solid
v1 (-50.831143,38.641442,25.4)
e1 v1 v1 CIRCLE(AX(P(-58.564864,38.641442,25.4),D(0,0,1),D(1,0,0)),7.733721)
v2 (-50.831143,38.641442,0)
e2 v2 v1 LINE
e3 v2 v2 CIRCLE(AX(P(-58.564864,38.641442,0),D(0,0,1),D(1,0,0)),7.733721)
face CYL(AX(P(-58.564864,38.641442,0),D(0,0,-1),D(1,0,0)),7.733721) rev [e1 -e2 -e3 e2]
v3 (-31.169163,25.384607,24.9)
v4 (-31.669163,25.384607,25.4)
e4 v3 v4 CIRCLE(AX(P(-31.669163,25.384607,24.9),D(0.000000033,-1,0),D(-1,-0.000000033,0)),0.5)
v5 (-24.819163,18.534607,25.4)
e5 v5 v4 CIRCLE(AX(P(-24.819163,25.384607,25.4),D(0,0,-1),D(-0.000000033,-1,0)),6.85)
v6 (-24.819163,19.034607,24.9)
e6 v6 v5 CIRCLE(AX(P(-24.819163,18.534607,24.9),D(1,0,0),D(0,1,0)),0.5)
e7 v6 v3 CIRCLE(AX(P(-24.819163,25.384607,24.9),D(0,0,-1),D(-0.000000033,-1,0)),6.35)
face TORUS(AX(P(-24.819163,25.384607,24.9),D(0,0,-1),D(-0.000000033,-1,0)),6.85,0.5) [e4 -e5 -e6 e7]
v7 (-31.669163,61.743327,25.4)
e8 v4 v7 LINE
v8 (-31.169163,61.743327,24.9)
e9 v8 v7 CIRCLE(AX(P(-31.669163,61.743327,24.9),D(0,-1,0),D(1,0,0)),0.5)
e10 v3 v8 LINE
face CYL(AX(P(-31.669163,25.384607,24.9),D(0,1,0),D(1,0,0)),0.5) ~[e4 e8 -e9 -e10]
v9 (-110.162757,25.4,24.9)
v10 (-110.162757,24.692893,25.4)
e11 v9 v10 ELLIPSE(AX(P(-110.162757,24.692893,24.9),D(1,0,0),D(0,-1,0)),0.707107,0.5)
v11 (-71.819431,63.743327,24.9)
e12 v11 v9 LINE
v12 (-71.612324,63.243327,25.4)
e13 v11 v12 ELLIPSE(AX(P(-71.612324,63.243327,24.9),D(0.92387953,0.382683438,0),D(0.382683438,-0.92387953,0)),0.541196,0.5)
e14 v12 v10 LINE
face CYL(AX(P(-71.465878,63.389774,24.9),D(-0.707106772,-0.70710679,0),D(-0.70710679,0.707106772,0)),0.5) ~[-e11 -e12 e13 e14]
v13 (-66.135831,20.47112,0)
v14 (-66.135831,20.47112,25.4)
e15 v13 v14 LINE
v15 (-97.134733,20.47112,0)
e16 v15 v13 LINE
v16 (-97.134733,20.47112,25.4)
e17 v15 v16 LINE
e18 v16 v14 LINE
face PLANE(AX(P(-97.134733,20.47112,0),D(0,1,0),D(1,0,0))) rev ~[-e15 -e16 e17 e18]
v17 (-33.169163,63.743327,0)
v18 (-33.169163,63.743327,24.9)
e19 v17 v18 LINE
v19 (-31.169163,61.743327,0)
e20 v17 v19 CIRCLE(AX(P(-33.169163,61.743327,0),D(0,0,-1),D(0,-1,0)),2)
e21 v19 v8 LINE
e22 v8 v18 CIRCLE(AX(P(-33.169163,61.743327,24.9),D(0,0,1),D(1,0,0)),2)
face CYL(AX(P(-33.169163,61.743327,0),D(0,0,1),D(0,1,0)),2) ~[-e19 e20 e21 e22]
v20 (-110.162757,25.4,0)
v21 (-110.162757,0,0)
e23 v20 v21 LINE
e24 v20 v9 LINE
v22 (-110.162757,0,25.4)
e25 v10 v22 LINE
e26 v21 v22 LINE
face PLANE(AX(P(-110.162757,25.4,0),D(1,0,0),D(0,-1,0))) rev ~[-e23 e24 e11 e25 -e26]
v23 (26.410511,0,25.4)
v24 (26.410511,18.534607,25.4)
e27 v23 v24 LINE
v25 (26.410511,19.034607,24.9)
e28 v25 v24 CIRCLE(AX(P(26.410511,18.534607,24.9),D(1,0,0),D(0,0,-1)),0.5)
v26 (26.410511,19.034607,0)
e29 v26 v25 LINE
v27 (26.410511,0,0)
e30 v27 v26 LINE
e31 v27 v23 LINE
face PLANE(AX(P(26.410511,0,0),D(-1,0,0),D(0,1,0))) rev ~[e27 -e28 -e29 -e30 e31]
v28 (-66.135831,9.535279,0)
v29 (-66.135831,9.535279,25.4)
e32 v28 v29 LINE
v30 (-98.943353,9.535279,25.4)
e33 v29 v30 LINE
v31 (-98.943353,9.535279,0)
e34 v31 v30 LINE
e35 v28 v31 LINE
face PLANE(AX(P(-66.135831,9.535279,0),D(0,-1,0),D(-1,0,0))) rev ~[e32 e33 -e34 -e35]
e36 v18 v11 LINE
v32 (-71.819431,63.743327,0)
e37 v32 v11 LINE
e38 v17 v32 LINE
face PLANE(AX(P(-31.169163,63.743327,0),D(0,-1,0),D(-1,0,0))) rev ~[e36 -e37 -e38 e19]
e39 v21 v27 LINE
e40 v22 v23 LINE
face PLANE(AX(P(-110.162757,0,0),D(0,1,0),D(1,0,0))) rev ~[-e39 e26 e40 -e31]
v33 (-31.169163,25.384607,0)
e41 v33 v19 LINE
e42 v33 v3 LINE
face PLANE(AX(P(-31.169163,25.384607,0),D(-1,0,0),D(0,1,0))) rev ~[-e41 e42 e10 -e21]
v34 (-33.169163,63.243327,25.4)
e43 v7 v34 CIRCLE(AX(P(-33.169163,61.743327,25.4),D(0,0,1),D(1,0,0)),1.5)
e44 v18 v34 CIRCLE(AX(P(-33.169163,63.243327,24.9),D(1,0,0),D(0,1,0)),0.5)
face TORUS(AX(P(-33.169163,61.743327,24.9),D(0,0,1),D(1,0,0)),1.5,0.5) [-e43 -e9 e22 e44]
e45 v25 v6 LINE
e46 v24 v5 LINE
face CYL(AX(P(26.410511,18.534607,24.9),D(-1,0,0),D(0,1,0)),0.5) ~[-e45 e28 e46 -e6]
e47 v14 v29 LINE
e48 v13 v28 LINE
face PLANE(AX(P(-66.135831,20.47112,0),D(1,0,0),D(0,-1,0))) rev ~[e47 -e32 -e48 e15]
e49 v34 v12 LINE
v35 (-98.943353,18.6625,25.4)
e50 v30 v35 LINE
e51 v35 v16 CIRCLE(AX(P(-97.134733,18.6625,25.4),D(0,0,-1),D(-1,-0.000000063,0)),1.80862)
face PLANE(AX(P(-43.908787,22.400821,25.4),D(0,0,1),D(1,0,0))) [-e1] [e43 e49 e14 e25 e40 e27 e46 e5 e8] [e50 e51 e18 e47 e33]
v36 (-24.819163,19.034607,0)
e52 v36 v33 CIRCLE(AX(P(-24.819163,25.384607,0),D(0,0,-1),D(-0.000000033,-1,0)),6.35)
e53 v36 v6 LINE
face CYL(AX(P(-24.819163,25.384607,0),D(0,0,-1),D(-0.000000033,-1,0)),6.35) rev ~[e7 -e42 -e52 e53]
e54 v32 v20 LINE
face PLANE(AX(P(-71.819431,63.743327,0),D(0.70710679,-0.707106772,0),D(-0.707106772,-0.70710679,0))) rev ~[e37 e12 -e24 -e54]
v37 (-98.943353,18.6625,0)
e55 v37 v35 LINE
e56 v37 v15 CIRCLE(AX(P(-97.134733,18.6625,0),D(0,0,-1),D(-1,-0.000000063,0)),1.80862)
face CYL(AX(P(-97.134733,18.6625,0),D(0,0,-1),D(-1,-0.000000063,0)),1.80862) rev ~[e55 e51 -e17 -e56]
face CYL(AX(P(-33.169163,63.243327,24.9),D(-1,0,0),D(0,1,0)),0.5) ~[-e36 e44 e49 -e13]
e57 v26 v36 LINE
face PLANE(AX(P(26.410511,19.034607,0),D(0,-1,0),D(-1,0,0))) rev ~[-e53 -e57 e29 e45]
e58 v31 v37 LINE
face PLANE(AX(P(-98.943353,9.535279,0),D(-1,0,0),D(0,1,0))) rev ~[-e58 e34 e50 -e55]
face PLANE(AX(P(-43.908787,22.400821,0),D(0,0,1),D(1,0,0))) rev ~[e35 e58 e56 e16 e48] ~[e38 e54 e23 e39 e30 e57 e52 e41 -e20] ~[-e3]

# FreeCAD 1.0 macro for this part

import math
import FreeCAD as App
import Part
import Sketcher

V = App.Vector
Q = App.Units.Quantity


def edges_at(feature, points):
    """Names of the edges that pass closest to the given points."""
    edges = feature.Shape.Edges
    near = lambda p: min(range(len(edges)), key=lambda i: edges[i].distToShape(Part.Vertex(*p))[0])
    return sorted({f"Edge{near(p) + 1}" for p in points})

doc = App.newDocument("Part")
body = doc.addObject("PartDesign::Body", "Body")

# Sketch on XY plane
sketch1 = doc.addObject("Sketcher::SketchObject", "Sketch")
body.addObject(sketch1)
sketch1.AttachmentSupport = (doc.XY_Plane, [""])
sketch1.MapMode = "FlatFace"
sketch1.addGeometry([
    Part.LineSegment(V(-110.2, 0, 0), V(26.4, 0, 0)),  # 0
    Part.LineSegment(V(26.4, 0, 0), V(26.4, 19, 0)),  # 1
    Part.LineSegment(V(26.4, 19, 0), V(-24.8, 19, 0)),  # 2
    Part.ArcOfCircle(Part.Circle(V(-24.8, 25.4, 0), V(0, 0, 1), 6.4), math.radians(-180), math.radians(-90)),  # 3
    Part.LineSegment(V(-31.2, 25.4, 0), V(-31.2, 63.7, 0)),  # 4
    Part.LineSegment(V(-31.2, 63.7, 0), V(-71.8, 63.7, 0)),  # 5
    Part.LineSegment(V(-71.8, 63.7, 0), V(-110.2, 25.4, 0)),  # 6
    Part.LineSegment(V(-110.2, 25.4, 0), V(-110.2, 0, 0)),  # 7
    Part.LineSegment(V(-98.9, 9.5, 0), V(-98.9, 18.7, 0)),  # 8
    Part.ArcOfCircle(Part.Circle(V(-97.1, 18.7, 0), V(0, 0, 1), 1.8), math.radians(90), math.radians(180)),  # 9
    Part.LineSegment(V(-97.1, 20.5, 0), V(-66.1, 20.5, 0)),  # 10
    Part.LineSegment(V(-66.1, 20.5, 0), V(-66.1, 9.5, 0)),  # 11
    Part.LineSegment(V(-66.1, 9.5, 0), V(-98.9, 9.5, 0)),  # 12
    Part.Circle(V(-58.6, 38.6, 0), V(0, 0, 1), 7.7),  # 13
], False)
sketch1.addConstraint([
    Sketcher.Constraint("Coincident", 0, 2, 1, 1),
    Sketcher.Constraint("Coincident", 1, 2, 2, 1),
    Sketcher.Constraint("Tangent", 2, 2, 3, 2),
    Sketcher.Constraint("Tangent", 3, 1, 4, 1),
    Sketcher.Constraint("Coincident", 4, 2, 5, 1),
    Sketcher.Constraint("Coincident", 5, 2, 6, 1),
    Sketcher.Constraint("Coincident", 6, 2, 7, 1),
    Sketcher.Constraint("Coincident", 7, 2, 0, 1),
    Sketcher.Constraint("Tangent", 8, 2, 9, 2),
    Sketcher.Constraint("Tangent", 9, 1, 10, 1),
    Sketcher.Constraint("Coincident", 10, 2, 11, 1),
    Sketcher.Constraint("Coincident", 11, 2, 12, 1),
    Sketcher.Constraint("Coincident", 12, 2, 8, 1),
    Sketcher.Constraint("Horizontal", 0),
    Sketcher.Constraint("Vertical", 1),
    Sketcher.Constraint("Horizontal", 2),
    Sketcher.Constraint("Vertical", 4),
    Sketcher.Constraint("Horizontal", 5),
    Sketcher.Constraint("Vertical", 7),
    Sketcher.Constraint("Vertical", 8),
    Sketcher.Constraint("Horizontal", 10),
    Sketcher.Constraint("Vertical", 11),
    Sketcher.Constraint("Horizontal", 12),
    Sketcher.Constraint("PointOnObject", 0, 2, -1),
    Sketcher.Constraint("Angle", 6, Q("-134.999999 deg")),
    Sketcher.Constraint("Radius", 3, 6.35),
    Sketcher.Constraint("DistanceY", 7, 2, 7, 1, 25.4),
    Sketcher.Constraint("Radius", 9, 1.80862),
    Sketcher.Constraint("Diameter", 13, 15.467442),
    Sketcher.Constraint("DistanceY", 4, 1, 4, 2, 38.35872),
    Sketcher.Constraint("DistanceY", 8, 1, 8, 2, 9.127221),
    Sketcher.Constraint("DistanceY", -1, 1, 9, 3, 18.6625),
    Sketcher.Constraint("DistanceX", 13, 3, 3, 3, 33.745701),
    Sketcher.Constraint("DistanceX", 0, 1, 0, 2, 136.573268),
    Sketcher.Constraint("DistanceX", 2, 2, 2, 1, 51.229674),
    Sketcher.Constraint("DistanceX", 5, 2, 5, 1, 40.650268),
    Sketcher.Constraint("DistanceX", 10, 1, 10, 2, 30.998902),
    Sketcher.Constraint("DistanceY", -1, 1, 13, 3, 38.641442),
    Sketcher.Constraint("DistanceX", -1, 1, 0, 2, 26.410511),
    Sketcher.Constraint("DistanceX", 10, 2, -1, 1, 66.135831),
])
pad1 = doc.addObject("PartDesign::Pad", "Pad")
body.addObject(pad1)
pad1.Profile = sketch1
pad1.Length = 25.4
doc.recompute()

fillet = doc.addObject("PartDesign::Fillet", "Fillet")
body.addObject(fillet)
fillet.Base = (pad1, edges_at(pad1, [(-31.169, 63.743, 12.7)]))
fillet.Radius = 2
doc.recompute()

fillet2 = doc.addObject("PartDesign::Fillet", "Fillet001")
body.addObject(fillet2)
fillet2.Base = (fillet, edges_at(fillet, [(-90.991, 44.572, 25.4), (-52.494, 63.743, 25.4)]))
fillet2.Radius = 0.5

doc.recompute()
